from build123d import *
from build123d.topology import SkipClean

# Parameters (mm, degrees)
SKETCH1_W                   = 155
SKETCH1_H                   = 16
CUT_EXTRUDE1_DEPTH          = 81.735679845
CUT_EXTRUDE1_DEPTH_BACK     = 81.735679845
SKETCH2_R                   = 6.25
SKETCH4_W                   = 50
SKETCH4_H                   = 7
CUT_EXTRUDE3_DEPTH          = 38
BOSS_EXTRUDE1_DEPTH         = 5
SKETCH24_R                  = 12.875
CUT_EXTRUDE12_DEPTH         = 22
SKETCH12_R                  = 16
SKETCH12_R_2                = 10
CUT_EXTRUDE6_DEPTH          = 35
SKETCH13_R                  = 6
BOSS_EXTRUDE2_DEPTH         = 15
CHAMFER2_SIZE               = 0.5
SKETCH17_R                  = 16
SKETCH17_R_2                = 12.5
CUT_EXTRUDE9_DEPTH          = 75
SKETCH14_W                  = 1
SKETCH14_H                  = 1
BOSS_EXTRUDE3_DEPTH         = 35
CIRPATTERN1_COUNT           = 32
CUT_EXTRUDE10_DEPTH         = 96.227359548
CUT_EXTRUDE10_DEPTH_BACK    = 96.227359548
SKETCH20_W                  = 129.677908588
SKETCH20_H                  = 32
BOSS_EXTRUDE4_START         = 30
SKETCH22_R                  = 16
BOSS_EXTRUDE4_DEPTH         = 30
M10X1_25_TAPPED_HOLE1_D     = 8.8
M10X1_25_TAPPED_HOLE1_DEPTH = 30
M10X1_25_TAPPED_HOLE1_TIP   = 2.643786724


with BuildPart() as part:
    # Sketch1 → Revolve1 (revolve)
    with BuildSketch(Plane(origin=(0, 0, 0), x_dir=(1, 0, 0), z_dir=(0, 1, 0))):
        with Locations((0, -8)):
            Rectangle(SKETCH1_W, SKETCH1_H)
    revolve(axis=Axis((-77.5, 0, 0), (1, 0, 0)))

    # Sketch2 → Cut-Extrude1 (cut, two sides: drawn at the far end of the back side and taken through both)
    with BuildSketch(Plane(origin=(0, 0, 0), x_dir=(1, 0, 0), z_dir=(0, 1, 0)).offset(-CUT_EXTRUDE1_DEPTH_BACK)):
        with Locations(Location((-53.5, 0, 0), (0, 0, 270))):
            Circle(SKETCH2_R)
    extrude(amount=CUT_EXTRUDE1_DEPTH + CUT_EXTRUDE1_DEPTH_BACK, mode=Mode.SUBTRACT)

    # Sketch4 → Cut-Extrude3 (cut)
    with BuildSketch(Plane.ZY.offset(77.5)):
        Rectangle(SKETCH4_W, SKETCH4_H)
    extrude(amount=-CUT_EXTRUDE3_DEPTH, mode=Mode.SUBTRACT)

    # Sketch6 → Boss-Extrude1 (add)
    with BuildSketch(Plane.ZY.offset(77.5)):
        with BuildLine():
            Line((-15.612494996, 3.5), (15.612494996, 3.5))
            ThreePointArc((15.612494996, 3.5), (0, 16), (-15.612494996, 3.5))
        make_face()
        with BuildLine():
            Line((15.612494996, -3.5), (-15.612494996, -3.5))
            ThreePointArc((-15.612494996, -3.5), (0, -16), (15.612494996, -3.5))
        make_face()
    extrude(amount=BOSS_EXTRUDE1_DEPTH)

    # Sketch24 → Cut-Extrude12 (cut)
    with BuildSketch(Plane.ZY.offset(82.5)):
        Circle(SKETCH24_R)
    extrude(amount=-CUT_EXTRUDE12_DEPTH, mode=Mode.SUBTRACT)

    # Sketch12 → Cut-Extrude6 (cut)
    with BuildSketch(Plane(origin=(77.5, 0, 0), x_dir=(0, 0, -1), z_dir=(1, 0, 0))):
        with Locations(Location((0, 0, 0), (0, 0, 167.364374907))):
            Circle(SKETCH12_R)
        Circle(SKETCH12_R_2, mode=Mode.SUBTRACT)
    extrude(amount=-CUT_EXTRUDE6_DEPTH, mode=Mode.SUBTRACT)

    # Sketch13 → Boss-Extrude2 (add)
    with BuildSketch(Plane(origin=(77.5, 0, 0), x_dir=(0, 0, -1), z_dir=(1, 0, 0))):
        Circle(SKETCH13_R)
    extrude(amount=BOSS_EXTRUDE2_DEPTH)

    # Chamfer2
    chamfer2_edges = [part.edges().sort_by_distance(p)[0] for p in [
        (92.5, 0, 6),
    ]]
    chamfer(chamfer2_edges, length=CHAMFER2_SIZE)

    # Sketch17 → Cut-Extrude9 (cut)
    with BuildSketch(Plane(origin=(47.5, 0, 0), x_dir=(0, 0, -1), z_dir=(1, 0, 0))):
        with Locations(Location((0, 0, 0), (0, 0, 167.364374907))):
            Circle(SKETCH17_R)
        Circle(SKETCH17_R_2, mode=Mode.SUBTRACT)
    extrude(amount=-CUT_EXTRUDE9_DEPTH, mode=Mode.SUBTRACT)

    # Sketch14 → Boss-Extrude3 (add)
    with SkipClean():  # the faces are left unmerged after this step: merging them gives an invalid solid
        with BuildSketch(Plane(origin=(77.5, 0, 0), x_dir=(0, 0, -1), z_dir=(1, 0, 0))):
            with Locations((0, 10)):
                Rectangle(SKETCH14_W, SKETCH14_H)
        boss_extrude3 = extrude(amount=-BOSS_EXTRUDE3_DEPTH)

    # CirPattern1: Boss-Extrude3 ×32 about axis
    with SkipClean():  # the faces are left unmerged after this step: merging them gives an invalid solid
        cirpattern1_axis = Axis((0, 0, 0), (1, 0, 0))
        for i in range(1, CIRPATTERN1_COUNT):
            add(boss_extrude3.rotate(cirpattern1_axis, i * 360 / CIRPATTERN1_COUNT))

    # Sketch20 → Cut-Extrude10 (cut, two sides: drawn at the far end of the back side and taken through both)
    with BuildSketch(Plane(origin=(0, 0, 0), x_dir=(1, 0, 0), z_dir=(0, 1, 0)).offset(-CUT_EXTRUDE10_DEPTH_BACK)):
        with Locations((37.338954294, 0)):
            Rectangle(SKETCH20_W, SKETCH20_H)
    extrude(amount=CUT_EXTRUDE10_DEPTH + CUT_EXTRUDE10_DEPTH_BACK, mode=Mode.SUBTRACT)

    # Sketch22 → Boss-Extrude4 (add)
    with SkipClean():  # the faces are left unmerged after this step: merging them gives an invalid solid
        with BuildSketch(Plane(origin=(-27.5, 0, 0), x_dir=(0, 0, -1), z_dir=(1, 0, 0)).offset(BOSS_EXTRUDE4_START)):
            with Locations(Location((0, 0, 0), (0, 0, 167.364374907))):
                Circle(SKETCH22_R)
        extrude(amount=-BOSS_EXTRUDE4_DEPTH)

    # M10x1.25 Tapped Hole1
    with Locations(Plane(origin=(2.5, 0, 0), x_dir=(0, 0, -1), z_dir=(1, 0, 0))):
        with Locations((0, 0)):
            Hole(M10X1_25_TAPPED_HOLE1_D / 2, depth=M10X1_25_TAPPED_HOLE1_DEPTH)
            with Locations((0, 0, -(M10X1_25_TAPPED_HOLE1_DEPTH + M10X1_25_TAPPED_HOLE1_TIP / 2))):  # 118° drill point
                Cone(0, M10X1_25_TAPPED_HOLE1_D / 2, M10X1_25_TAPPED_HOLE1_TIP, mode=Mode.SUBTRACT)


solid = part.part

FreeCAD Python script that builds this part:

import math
import FreeCAD as App
import Part
import Sketcher
from FreeCAD import Vector
Q = App.Units.Quantity


def edges_at(feature, points):
    """Names of the edges that pass closest to the given points."""
    edges = feature.Shape.Edges
    near = lambda p: min(range(len(edges)), key=lambda i: edges[i].distToShape(Part.Vertex(*p))[0])
    return sorted({f"Edge{near(p) + 1}" for p in points})

doc = App.newDocument("Part")
body = doc.addObject("PartDesign::Body", "Body")

sketch1 = body.newObject("Sketcher::SketchObject", "Sketch")
sketch1.AttachmentSupport = (doc.getObject("XZ_Plane"), [""])
sketch1.MapMode = "FlatFace"
sketch1.addGeometry([
    Part.LineSegment(Vector(-78, 0, 0), Vector(-78, 16, 0)),
    Part.LineSegment(Vector(-78, 16, 0), Vector(78, 16, 0)),
    Part.LineSegment(Vector(78, 16, 0), Vector(78, 0, 0)),
    Part.LineSegment(Vector(78, 0, 0), Vector(-78, 0, 0)),
], False)
sketch1.addConstraint([
    Sketcher.Constraint("Coincident", 0, 2, 1, 1),
    Sketcher.Constraint("Coincident", 1, 2, 2, 1),
    Sketcher.Constraint("Coincident", 2, 2, 3, 1),
    Sketcher.Constraint("Coincident", 3, 2, 0, 1),
    Sketcher.Constraint("Vertical", 0),
    Sketcher.Constraint("Horizontal", 1),
    Sketcher.Constraint("Vertical", 2),
    Sketcher.Constraint("Horizontal", 3),
    Sketcher.Constraint("Symmetric", 2, 2, 3, 2, -1, 1),
    Sketcher.Constraint("DistanceX", 1, 1, 1, 2, Q("155 mm")),
    Sketcher.Constraint("DistanceY", 0, 1, 0, 2, Q("16 mm")),
])
revolution = body.newObject("PartDesign::Revolution", "Revolution")
revolution.Profile = sketch1
revolution.ReferenceAxis = (sketch1, ["H_Axis"])
revolution.Angle = 360

sketch2 = body.newObject("Sketcher::SketchObject", "Sketch001")
sketch2.AttachmentSupport = (doc.getObject("XZ_Plane"), [""])
sketch2.MapMode = "FlatFace"
sketch2.addGeometry(Part.Circle(Vector(-54, 0, 0), Vector(0, 0, 1), 6), False)
sketch2.addConstraint([
    Sketcher.Constraint("PointOnObject", 0, 3, -1),
    Sketcher.Constraint("Diameter", 0, Q("12.5 mm")),
    Sketcher.Constraint("DistanceX", 0, 3, -1, 1, Q("53.5 mm")),
])
pocket1 = body.newObject("PartDesign::Pocket", "Pocket")
pocket1.Profile = sketch2
pocket1.Type = "ThroughAll"
pocket1.Midplane = True

sketch3 = body.newObject("Sketcher::SketchObject", "Sketch002")
sketch3.AttachmentSupport = (doc.getObject("YZ_Plane"), [""])
sketch3.MapMode = "FlatFace"
sketch3.AttachmentOffset = App.Placement(Vector(0, 0, -77.5), App.Rotation())
sketch3.addGeometry([
    Part.LineSegment(Vector(4, -25, 0), Vector(-4, -25, 0)),
    Part.LineSegment(Vector(-4, -25, 0), Vector(-4, 25, 0)),
    Part.LineSegment(Vector(-4, 25, 0), Vector(4, 25, 0)),
    Part.LineSegment(Vector(4, 25, 0), Vector(4, -25, 0)),
], False)
sketch3.addConstraint([
    Sketcher.Constraint("Coincident", 0, 2, 1, 1),
    Sketcher.Constraint("Coincident", 1, 2, 2, 1),
    Sketcher.Constraint("Coincident", 2, 2, 3, 1),
    Sketcher.Constraint("Coincident", 3, 2, 0, 1),
    Sketcher.Constraint("Horizontal", 0),
    Sketcher.Constraint("Vertical", 1),
    Sketcher.Constraint("Horizontal", 2),
    Sketcher.Constraint("Vertical", 3),
    Sketcher.Constraint("Symmetric", 0, 2, 2, 2, -1, 1),
    Sketcher.Constraint("DistanceX", 0, 2, 0, 1, Q("7 mm")),
    Sketcher.Constraint("DistanceY", 1, 1, 1, 2, Q("50 mm")),
])
pocket2 = body.newObject("PartDesign::Pocket", "Pocket001")
pocket2.Profile = sketch3
pocket2.Length = 38
pocket2.Reversed = True

sketch4 = body.newObject("Sketcher::SketchObject", "Sketch003")
sketch4.AttachmentSupport = (doc.getObject("YZ_Plane"), [""])
sketch4.MapMode = "FlatFace"
sketch4.AttachmentOffset = App.Placement(Vector(0, 0, -77.5), App.Rotation())
sketch4.addGeometry([
    Part.LineSegment(Vector(4, -16, 0), Vector(4, 16, 0)),
    Part.ArcOfCircle(Part.Circle(Vector(0, 0, 0), Vector(0, 0, 1), 16), math.radians(-77), math.radians(77)),
    Part.LineSegment(Vector(-4, 16, 0), Vector(-4, -16, 0)),
    Part.ArcOfCircle(Part.Circle(Vector(0, 0, 0), Vector(0, 0, 1), 16), math.radians(103), math.radians(257)),
], False)
sketch4.addConstraint([
    Sketcher.Constraint("Coincident", 0, 1, 1, 1),
    Sketcher.Constraint("Coincident", 1, 2, 0, 2),
    Sketcher.Constraint("Coincident", 2, 1, 3, 1),
    Sketcher.Constraint("Coincident", 3, 2, 2, 2),
    Sketcher.Constraint("Vertical", 0),
    Sketcher.Constraint("Vertical", 2),
    Sketcher.Constraint("Coincident", 1, 3, -1, 1),
    Sketcher.Constraint("Coincident", 3, 3, -1, 1),
    Sketcher.Constraint("Equal", 1, 3),
    Sketcher.Constraint("Horizontal", 1, 2, 2, 1),
    Sketcher.Constraint("Radius", 1, Q("16 mm")),
    Sketcher.Constraint("DistanceX", 2, 1, 1, 2, Q("7 mm")),
])
pad1 = body.newObject("PartDesign::Pad", "Pad")
pad1.Profile = sketch4
pad1.Length = 5
pad1.Reversed = True

sketch5 = body.newObject("Sketcher::SketchObject", "Sketch004")
sketch5.AttachmentSupport = (doc.getObject("YZ_Plane"), [""])
sketch5.MapMode = "FlatFace"
sketch5.AttachmentOffset = App.Placement(Vector(0, 0, -82.5), App.Rotation())
sketch5.addGeometry(Part.Circle(Vector(0, 0, 0), Vector(0, 0, 1), 13), False)
sketch5.addConstraint([
    Sketcher.Constraint("Coincident", 0, 3, -1, 1),
    Sketcher.Constraint("Diameter", 0, Q("25.75 mm")),
])
pocket3 = body.newObject("PartDesign::Pocket", "Pocket002")
pocket3.Profile = sketch5
pocket3.Length = 22
pocket3.Reversed = True

sketch6 = body.newObject("Sketcher::SketchObject", "Sketch005")
sketch6.AttachmentSupport = (doc.getObject("YZ_Plane"), [""])
sketch6.MapMode = "FlatFace"
sketch6.AttachmentOffset = App.Placement(Vector(0, 0, 77.5), App.Rotation())
sketch6.addGeometry([
    Part.Circle(Vector(0, 0, 0), Vector(0, 0, 1), 16),
    Part.Circle(Vector(0, 0, 0), Vector(0, 0, 1), 10),
], False)
sketch6.addConstraint([
    Sketcher.Constraint("Coincident", 0, 3, -1, 1),
    Sketcher.Constraint("Coincident", 1, 3, -1, 1),
    Sketcher.Constraint("Diameter", 0, Q("32 mm")),
    Sketcher.Constraint("Diameter", 1, Q("20 mm")),
])
pocket4 = body.newObject("PartDesign::Pocket", "Pocket003")
pocket4.Profile = sketch6
pocket4.Length = 35

sketch7 = body.newObject("Sketcher::SketchObject", "Sketch006")
sketch7.AttachmentSupport = (doc.getObject("YZ_Plane"), [""])
sketch7.MapMode = "FlatFace"
sketch7.AttachmentOffset = App.Placement(Vector(0, 0, 77.5), App.Rotation())
sketch7.addGeometry(Part.Circle(Vector(0, 0, 0), Vector(0, 0, 1), 6), False)
sketch7.addConstraint([
    Sketcher.Constraint("Coincident", 0, 3, -1, 1),
    Sketcher.Constraint("Diameter", 0, Q("12 mm")),
])
pad2 = body.newObject("PartDesign::Pad", "Pad001")
pad2.Profile = sketch7
pad2.Length = 15
doc.recompute()

chamfer = body.newObject("PartDesign::Chamfer", "Chamfer")
chamfer.Base = (pad2, edges_at(pad2, [(92.5, 0, 6)]))
chamfer.Size = 0.5

sketch8 = body.newObject("Sketcher::SketchObject", "Sketch007")
sketch8.AttachmentSupport = (doc.getObject("YZ_Plane"), [""])
sketch8.MapMode = "FlatFace"
sketch8.AttachmentOffset = App.Placement(Vector(0, 0, 47.5), App.Rotation())
sketch8.addGeometry([
    Part.Circle(Vector(0, 0, 0), Vector(0, 0, 1), 16),
    Part.Circle(Vector(0, 0, 0), Vector(0, 0, 1), 12),
], False)
sketch8.addConstraint([
    Sketcher.Constraint("Coincident", 0, 3, -1, 1),
    Sketcher.Constraint("Coincident", 1, 3, -1, 1),
    Sketcher.Constraint("Diameter", 0, Q("32 mm")),
    Sketcher.Constraint("Diameter", 1, Q("25 mm")),
])
pocket5 = body.newObject("PartDesign::Pocket", "Pocket004")
pocket5.Profile = sketch8
pocket5.Length = 75

sketch9 = body.newObject("Sketcher::SketchObject", "Sketch008")
sketch9.AttachmentSupport = (doc.getObject("YZ_Plane"), [""])
sketch9.MapMode = "FlatFace"
sketch9.AttachmentOffset = App.Placement(Vector(0, 0, 77.5), App.Rotation())
sketch9.addGeometry([
    Part.LineSegment(Vector(10.5, 0.5, 0), Vector(9.5, 0.5, 0)),
    Part.LineSegment(Vector(9.5, 0.5, 0), Vector(9.5, -0.5, 0)),
    Part.LineSegment(Vector(9.5, -0.5, 0), Vector(10.5, -0.5, 0)),
    Part.LineSegment(Vector(10.5, -0.5, 0), Vector(10.5, 0.5, 0)),
], False)
sketch9.addConstraint([
    Sketcher.Constraint("Coincident", 0, 2, 1, 1),
    Sketcher.Constraint("Coincident", 1, 2, 2, 1),
    Sketcher.Constraint("Coincident", 2, 2, 3, 1),
    Sketcher.Constraint("Coincident", 3, 2, 0, 1),
    Sketcher.Constraint("Horizontal", 0),
    Sketcher.Constraint("Vertical", 1),
    Sketcher.Constraint("Horizontal", 2),
    Sketcher.Constraint("Vertical", 3),
    Sketcher.Constraint("Equal", 2, 1),
    Sketcher.Constraint("DistanceX", 0, 2, 0, 1, Q("1 mm")),
    Sketcher.Constraint("DistanceX", -1, 1, 0, 2, Q("9.5 mm")),
    Sketcher.Constraint("DistanceY", -1, 1, 0, 2, Q("0.5 mm")),
])
pad3 = body.newObject("PartDesign::Pad", "Pad002")
pad3.Profile = sketch9
pad3.Length = 35
pad3.Reversed = True
doc.recompute()

polarpattern = body.newObject("PartDesign::PolarPattern", "PolarPattern")
polarpattern.Originals = [pad3]
polarpattern.Axis = (doc.getObject("X_Axis"), [""])
polarpattern.Angle = 360
polarpattern.Occurrences = 32
body.Tip = polarpattern

sketch10 = body.newObject("Sketcher::SketchObject", "Sketch009")
sketch10.AttachmentSupport = (doc.getObject("XZ_Plane"), [""])
sketch10.MapMode = "FlatFace"
sketch10.addGeometry([
    Part.LineSegment(Vector(-28, -16, 0), Vector(-28, 16, 0)),
    Part.LineSegment(Vector(-28, 16, 0), Vector(102, 16, 0)),
    Part.LineSegment(Vector(102, 16, 0), Vector(102, -16, 0)),
    Part.LineSegment(Vector(102, -16, 0), Vector(-28, -16, 0)),
], False)
sketch10.addConstraint([
    Sketcher.Constraint("Coincident", 0, 2, 1, 1),
    Sketcher.Constraint("Coincident", 1, 2, 2, 1),
    Sketcher.Constraint("Coincident", 2, 2, 3, 1),
    Sketcher.Constraint("Coincident", 3, 2, 0, 1),
    Sketcher.Constraint("Vertical", 0),
    Sketcher.Constraint("Horizontal", 1),
    Sketcher.Constraint("Vertical", 2),
    Sketcher.Constraint("Horizontal", 3),
    Sketcher.Constraint("DistanceY", 0, 1, 0, 2, Q("32 mm")),
    Sketcher.Constraint("DistanceY", -1, 1, 0, 2, Q("16 mm")),
    Sketcher.Constraint("DistanceX", 0, 2, -1, 1, Q("27.5 mm")),
    Sketcher.Constraint("DistanceX", 1, 1, 1, 2, Q("129.677909 mm")),
])
pocket6 = body.newObject("PartDesign::Pocket", "Pocket005")
pocket6.Profile = sketch10
pocket6.Type = "ThroughAll"
pocket6.Midplane = True

sketch11 = body.newObject("Sketcher::SketchObject", "Sketch010")
sketch11.AttachmentSupport = (doc.getObject("YZ_Plane"), [""])
sketch11.MapMode = "FlatFace"
sketch11.AttachmentOffset = App.Placement(Vector(0, 0, 2.5), App.Rotation())
sketch11.addGeometry(Part.Circle(Vector(0, 0, 0), Vector(0, 0, 1), 16), False)
sketch11.addConstraint([
    Sketcher.Constraint("Coincident", 0, 3, -1, 1),
    Sketcher.Constraint("Diameter", 0, Q("32 mm")),
])
pad4 = body.newObject("PartDesign::Pad", "Pad003")
pad4.Profile = sketch11
pad4.Length = 30
pad4.Reversed = True

sketch12 = body.newObject("Sketcher::SketchObject", "Sketch011")
sketch12.AttachmentSupport = (doc.getObject("YZ_Plane"), [""])
sketch12.MapMode = "FlatFace"
sketch12.AttachmentOffset = App.Placement(Vector(0, 0, 2.5), App.Rotation())
sketch12.addGeometry(Part.Circle(Vector(0, 0, 0), Vector(0, 0, 1), 4.4), False)
sketch12.addConstraint([
    Sketcher.Constraint("Coincident", 0, 3, -1, 1),
    Sketcher.Constraint("Diameter", 0, Q("8.8 mm")),
])
doc.recompute()
hole = body.newObject("PartDesign::Hole", "Hole")
hole.Profile = sketch12
hole.ThreadType = "None"
hole.Diameter = 8.8
hole.DepthType = "Dimension"
hole.Depth = 30
hole.DrillPoint = "Angled"
hole.DrillPointAngle = 118

doc.recompute()
